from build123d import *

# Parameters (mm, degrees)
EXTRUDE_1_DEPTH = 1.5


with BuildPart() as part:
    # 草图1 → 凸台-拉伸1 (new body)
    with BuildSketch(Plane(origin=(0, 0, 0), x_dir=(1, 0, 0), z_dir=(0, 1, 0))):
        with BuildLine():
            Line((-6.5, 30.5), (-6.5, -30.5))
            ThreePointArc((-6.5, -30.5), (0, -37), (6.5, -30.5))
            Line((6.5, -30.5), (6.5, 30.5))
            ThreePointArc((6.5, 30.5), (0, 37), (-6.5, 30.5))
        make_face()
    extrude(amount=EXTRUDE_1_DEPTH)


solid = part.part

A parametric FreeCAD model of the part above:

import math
import FreeCAD as App
import Part
import Sketcher
Q = App.Units.Quantity

doc = App.newDocument("Part")
body = doc.addObject("PartDesign::Body", "Body")

sketch1 = body.newObject("Sketcher::SketchObject", "Sketch")
sketch1.AttachmentSupport = (doc.getObject("XZ_Plane"), [""])
sketch1.MapMode = "FlatFace"
sketch1.addGeometry([
    Part.LineSegment(App.Vector(-6, -30, 0), App.Vector(-6, 30, 0)),
    Part.ArcOfCircle(Part.Circle(App.Vector(0, 30, 0), App.Vector(0, 0, 1), 6), math.radians(0), math.radians(180)),
    Part.LineSegment(App.Vector(6, 30, 0), App.Vector(6, -30, 0)),
    Part.ArcOfCircle(Part.Circle(App.Vector(0, -30, 0), App.Vector(0, 0, 1), 6), math.radians(180), math.radians(360)),
], False)
sketch1.addConstraint([
    Sketcher.Constraint("Tangent", 0, 2, 1, 2),
    Sketcher.Constraint("Tangent", 1, 1, 2, 1),
    Sketcher.Constraint("Tangent", 2, 2, 3, 2),
    Sketcher.Constraint("Tangent", 3, 1, 0, 1),
    Sketcher.Constraint("Vertical", 0),
    Sketcher.Constraint("Vertical", 2),
    Sketcher.Constraint("Symmetric", 1, 3, 3, 3, -1, 1),
    Sketcher.Constraint("Radius", 1, Q("6.5 mm")),
    Sketcher.Constraint("DistanceY", 0, 1, 0, 2, Q("61 mm")),
])
pad1 = body.newObject("PartDesign::Pad", "Pad")
pad1.Profile = sketch1
pad1.Length = 1.5
pad1.Reversed = True

doc.recompute()
